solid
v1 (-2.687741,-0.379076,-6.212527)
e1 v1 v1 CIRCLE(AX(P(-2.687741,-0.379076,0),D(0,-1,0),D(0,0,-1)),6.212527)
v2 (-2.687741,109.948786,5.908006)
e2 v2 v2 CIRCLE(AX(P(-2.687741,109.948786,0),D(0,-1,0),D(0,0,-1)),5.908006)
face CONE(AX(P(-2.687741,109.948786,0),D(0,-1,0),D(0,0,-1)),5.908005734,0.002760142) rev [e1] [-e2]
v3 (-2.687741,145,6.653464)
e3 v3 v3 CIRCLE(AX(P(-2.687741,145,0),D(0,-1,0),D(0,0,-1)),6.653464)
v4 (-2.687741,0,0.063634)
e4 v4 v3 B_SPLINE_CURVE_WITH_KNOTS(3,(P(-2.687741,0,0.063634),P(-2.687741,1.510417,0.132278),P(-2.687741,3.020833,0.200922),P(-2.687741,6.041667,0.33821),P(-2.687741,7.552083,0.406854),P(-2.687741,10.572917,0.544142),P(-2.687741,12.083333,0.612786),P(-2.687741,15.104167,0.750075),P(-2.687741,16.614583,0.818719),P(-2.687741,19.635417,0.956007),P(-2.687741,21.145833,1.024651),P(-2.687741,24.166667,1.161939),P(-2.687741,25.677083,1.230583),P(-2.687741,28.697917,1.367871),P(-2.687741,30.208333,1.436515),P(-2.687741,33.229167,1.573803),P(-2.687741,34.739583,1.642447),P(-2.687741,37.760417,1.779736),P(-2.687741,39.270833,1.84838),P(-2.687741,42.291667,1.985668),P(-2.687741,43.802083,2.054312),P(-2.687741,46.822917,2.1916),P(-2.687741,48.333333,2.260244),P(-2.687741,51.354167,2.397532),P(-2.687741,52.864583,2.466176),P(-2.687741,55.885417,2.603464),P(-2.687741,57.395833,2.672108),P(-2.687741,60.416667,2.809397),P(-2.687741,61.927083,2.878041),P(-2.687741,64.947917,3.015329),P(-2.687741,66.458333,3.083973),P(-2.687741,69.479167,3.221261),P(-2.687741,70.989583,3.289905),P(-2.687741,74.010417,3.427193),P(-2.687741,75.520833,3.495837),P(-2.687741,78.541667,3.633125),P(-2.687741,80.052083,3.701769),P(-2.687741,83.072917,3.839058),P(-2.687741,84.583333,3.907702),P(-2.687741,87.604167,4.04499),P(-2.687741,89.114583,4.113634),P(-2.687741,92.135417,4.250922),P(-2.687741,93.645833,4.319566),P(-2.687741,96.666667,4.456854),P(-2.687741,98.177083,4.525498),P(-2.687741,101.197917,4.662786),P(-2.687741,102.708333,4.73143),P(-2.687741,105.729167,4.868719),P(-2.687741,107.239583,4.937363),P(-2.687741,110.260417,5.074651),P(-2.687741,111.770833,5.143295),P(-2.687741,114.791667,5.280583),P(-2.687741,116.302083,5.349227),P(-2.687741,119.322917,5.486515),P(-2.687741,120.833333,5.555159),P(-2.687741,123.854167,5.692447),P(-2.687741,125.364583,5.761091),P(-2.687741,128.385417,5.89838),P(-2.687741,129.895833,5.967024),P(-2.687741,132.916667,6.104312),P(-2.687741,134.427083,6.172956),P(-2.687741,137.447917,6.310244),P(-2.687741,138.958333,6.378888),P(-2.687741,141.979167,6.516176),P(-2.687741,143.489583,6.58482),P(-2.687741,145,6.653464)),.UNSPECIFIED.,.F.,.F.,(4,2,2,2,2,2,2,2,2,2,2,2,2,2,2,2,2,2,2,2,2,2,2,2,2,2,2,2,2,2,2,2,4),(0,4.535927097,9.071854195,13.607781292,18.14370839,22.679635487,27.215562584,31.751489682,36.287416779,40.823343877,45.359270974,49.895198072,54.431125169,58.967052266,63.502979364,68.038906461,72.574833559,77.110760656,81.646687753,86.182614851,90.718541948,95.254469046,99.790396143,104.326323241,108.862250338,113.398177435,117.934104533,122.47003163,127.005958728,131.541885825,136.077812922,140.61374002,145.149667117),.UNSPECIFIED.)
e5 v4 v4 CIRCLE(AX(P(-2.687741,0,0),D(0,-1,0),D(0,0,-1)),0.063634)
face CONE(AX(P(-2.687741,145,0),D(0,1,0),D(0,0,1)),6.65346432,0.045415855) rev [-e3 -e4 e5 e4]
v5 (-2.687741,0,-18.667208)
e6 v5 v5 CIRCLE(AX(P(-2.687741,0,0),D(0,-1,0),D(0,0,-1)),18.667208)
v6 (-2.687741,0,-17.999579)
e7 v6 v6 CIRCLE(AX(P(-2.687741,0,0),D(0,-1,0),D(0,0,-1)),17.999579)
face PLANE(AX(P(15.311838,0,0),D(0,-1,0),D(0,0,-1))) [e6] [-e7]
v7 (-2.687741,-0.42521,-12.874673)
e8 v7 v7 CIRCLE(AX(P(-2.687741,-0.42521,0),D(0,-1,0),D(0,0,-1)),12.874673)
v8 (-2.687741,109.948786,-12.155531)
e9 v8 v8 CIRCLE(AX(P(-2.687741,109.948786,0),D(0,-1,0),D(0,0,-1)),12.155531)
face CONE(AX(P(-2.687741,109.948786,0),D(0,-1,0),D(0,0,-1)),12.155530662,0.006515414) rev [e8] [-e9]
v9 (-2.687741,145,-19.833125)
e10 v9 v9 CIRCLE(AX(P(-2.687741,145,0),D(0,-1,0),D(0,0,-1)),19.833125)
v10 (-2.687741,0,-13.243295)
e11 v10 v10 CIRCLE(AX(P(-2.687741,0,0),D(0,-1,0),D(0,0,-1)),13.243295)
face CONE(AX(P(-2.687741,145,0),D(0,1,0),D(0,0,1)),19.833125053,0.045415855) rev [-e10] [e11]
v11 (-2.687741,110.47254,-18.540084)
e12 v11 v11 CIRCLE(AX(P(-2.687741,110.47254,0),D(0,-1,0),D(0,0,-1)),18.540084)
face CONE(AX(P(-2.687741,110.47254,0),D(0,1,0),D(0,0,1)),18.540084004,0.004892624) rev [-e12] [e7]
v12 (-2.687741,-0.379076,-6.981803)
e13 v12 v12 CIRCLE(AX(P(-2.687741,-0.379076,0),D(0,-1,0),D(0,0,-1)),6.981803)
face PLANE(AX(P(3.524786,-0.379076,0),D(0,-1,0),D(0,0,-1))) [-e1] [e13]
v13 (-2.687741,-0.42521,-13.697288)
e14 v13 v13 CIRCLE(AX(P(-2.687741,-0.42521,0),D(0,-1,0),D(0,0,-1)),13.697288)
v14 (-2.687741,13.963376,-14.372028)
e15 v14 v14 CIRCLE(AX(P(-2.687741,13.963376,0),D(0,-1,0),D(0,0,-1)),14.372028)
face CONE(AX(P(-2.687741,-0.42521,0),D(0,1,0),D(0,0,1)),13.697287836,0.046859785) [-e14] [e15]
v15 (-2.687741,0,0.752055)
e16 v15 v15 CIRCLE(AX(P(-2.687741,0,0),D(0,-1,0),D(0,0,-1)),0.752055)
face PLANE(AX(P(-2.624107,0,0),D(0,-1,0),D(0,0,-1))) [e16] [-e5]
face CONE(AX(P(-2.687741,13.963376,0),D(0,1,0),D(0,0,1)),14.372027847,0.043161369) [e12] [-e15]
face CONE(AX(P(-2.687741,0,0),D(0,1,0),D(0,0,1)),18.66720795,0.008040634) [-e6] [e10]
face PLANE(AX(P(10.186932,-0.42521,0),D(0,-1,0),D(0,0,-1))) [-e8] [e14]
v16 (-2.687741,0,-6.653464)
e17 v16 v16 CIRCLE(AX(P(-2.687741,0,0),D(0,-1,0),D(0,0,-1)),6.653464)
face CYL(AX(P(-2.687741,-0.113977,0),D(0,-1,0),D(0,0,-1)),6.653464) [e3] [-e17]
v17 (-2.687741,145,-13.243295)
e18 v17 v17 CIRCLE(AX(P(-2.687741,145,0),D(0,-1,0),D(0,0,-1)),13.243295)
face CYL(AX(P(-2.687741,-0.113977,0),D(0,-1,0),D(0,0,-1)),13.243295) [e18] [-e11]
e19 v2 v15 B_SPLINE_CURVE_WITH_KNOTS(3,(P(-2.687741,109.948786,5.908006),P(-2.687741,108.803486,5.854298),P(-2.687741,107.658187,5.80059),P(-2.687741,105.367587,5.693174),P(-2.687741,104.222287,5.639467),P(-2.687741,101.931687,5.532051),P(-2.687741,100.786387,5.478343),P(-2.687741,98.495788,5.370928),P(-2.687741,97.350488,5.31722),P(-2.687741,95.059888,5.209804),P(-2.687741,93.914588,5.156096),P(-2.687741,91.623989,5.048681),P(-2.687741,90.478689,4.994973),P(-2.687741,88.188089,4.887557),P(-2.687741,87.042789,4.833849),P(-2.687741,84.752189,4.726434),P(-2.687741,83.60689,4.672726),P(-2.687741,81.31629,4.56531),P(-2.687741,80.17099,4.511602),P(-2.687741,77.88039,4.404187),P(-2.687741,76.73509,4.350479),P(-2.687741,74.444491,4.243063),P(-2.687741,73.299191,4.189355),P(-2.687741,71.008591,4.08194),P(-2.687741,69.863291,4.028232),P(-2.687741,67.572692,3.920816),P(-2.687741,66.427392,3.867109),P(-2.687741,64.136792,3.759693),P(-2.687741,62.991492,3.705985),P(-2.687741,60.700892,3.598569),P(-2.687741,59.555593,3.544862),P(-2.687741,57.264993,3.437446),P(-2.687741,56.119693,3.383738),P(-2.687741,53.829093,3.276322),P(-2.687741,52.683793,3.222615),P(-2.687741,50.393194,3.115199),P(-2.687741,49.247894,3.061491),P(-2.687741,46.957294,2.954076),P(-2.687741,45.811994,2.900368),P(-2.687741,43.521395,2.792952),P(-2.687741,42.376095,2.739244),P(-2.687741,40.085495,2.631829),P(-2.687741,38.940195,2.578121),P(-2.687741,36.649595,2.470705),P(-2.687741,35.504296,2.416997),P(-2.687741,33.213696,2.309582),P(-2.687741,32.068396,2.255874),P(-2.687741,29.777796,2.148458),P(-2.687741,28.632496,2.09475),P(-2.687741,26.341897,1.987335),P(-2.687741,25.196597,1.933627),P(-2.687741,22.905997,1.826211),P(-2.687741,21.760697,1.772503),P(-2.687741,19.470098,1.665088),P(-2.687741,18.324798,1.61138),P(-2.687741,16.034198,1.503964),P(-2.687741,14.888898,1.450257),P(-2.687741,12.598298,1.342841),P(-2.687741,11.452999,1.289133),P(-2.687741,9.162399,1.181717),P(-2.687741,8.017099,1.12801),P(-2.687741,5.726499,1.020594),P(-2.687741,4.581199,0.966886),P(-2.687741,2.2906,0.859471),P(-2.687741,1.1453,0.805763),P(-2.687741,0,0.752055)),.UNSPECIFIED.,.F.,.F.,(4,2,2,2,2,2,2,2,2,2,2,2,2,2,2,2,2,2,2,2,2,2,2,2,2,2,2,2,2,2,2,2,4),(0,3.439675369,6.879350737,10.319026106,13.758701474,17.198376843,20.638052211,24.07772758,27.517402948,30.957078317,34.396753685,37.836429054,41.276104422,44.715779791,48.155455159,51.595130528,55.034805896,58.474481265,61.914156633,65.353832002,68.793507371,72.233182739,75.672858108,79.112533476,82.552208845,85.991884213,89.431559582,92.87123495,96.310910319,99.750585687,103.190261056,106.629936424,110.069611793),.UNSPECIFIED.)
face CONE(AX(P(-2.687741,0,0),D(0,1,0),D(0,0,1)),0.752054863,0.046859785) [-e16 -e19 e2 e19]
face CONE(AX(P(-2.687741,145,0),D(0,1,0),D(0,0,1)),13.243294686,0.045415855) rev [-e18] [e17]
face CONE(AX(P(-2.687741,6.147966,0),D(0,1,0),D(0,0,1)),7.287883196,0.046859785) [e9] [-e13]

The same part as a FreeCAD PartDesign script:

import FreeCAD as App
import Part
import Sketcher
from FreeCAD import Vector
Q = App.Units.Quantity

doc = App.newDocument("Part")
params = doc.addObject("Spreadsheet::Sheet", "Params")
for row, (alias, value) in enumerate([
    ("sketch1_height", "145 mm"),
    ("revolution_angle", "360 deg"),
], start=1):
    params.set(f"A{row}", alias)
    params.set(f"B{row}", "=" + value)
    params.setAlias(f"B{row}", alias)

body = doc.addObject("PartDesign::Body", "Body")

# Sketch on XY plane
sketch1 = body.newObject("Sketcher::SketchObject", "Sketch")
sketch1.AttachmentSupport = (doc.getObject("XY_Plane"), [""])
sketch1.MapMode = "FlatFace"
sketch1.addGeometry(Part.LineSegment(Vector(4, 145, 0), Vector(-2.6, 0, 0)), False)
sketch1.addGeometry(Part.LineSegment(Vector(-2.6, 0, 0), Vector(-1.9, 0, 0)), False)
sketch1.addGeometry(Part.LineSegment(Vector(-1.9, 0, 0), Vector(3.2, 109.9, 0)), False)
sketch1.addGeometry(Part.LineSegment(Vector(3.2, 109.9, 0), Vector(3.5, -0.4, 0)), False)
sketch1.addGeometry(Part.LineSegment(Vector(3.5, -0.4, 0), Vector(4.3, -0.4, 0)), False)
sketch1.addGeometry(Part.LineSegment(Vector(4.3, -0.4, 0), Vector(4.6, 6.1, 0)), False)
sketch1.addGeometry(Part.LineSegment(Vector(4.6, 6.1, 0), Vector(9.5, 109.9, 0)), False)
sketch1.addGeometry(Part.LineSegment(Vector(9.5, 109.9, 0), Vector(10.2, -0.4, 0)), False)
sketch1.addGeometry(Part.LineSegment(Vector(10.2, -0.4, 0), Vector(11, -0.4, 0)), False)
sketch1.addGeometry(Part.LineSegment(Vector(11, -0.4, 0), Vector(11.7, 14, 0)), False)
sketch1.addGeometry(Part.LineSegment(Vector(11.7, 14, 0), Vector(15.9, 110.5, 0)), False)
sketch1.addGeometry(Part.LineSegment(Vector(15.9, 110.5, 0), Vector(15.3, 0, 0)), False)
sketch1.addGeometry(Part.LineSegment(Vector(15.3, 0, 0), Vector(16, 0, 0)), False)
sketch1.addGeometry(Part.LineSegment(Vector(16, 0, 0), Vector(17.1, 145, 0)), False)
sketch1.addGeometry(Part.LineSegment(Vector(17.1, 145, 0), Vector(10.6, 0, 0)), False)
sketch1.addGeometry(Part.LineSegment(Vector(10.6, 0, 0), Vector(10.6, 145, 0)), False)
sketch1.addGeometry(Part.LineSegment(Vector(10.6, 145, 0), Vector(4, 0, 0)), False)
sketch1.addGeometry(Part.LineSegment(Vector(4, 0, 0), Vector(4, 145, 0)), False)
sketch1.addGeometry(Part.LineSegment(Vector(-2.7, -0.4, 0), Vector(-2.7, 145, 0)), True)  # axis
sketch1.addConstraint(Sketcher.Constraint("Coincident", 0, 2, 1, 1))
sketch1.addConstraint(Sketcher.Constraint("Coincident", 1, 2, 2, 1))
sketch1.addConstraint(Sketcher.Constraint("Coincident", 2, 2, 3, 1))
sketch1.addConstraint(Sketcher.Constraint("Coincident", 3, 2, 4, 1))
sketch1.addConstraint(Sketcher.Constraint("Coincident", 4, 2, 5, 1))
sketch1.addConstraint(Sketcher.Constraint("Coincident", 5, 2, 6, 1))
sketch1.addConstraint(Sketcher.Constraint("Coincident", 6, 2, 7, 1))
sketch1.addConstraint(Sketcher.Constraint("Coincident", 7, 2, 8, 1))
sketch1.addConstraint(Sketcher.Constraint("Coincident", 8, 2, 9, 1))
sketch1.addConstraint(Sketcher.Constraint("Coincident", 9, 2, 10, 1))
sketch1.addConstraint(Sketcher.Constraint("Coincident", 10, 2, 11, 1))
sketch1.addConstraint(Sketcher.Constraint("Coincident", 11, 2, 12, 1))
sketch1.addConstraint(Sketcher.Constraint("Coincident", 12, 2, 13, 1))
sketch1.addConstraint(Sketcher.Constraint("Coincident", 13, 2, 14, 1))
sketch1.addConstraint(Sketcher.Constraint("Coincident", 14, 2, 15, 1))
sketch1.addConstraint(Sketcher.Constraint("Coincident", 15, 2, 16, 1))
sketch1.addConstraint(Sketcher.Constraint("Coincident", 16, 2, 17, 1))
sketch1.addConstraint(Sketcher.Constraint("Coincident", 17, 2, 0, 1))
sketch1.addConstraint(Sketcher.Constraint("Horizontal", 1))
sketch1.addConstraint(Sketcher.Constraint("Horizontal", 4))
sketch1.addConstraint(Sketcher.Constraint("Horizontal", 8))
sketch1.addConstraint(Sketcher.Constraint("Horizontal", 12))
sketch1.addConstraint(Sketcher.Constraint("Vertical", 15))
sketch1.addConstraint(Sketcher.Constraint("Vertical", 17))
sketch1.addConstraint(Sketcher.Constraint("Vertical", 18))
sketch1.addConstraint(Sketcher.Constraint("PointOnObject", 0, 2, -1))
sketch1.addConstraint(Sketcher.Constraint("PointOnObject", 11, 2, -1))
sketch1.addConstraint(Sketcher.Constraint("PointOnObject", 14, 2, -1))
sketch1.addConstraint(Sketcher.Constraint("PointOnObject", 16, 2, -1))
sketch1.addConstraint(Sketcher.Constraint("Parallel", 2, 5))
sketch1.addConstraint(Sketcher.Constraint("Parallel", 5, 6))
sketch1.addConstraint(Sketcher.Constraint("Parallel", 6, 9))
sketch1.addConstraint(Sketcher.Constraint("Parallel", 0, 14))
sketch1.addConstraint(Sketcher.Constraint("Parallel", 14, 16))
sketch1.addConstraint(Sketcher.Constraint("Horizontal", 2, 2, 6, 2))
sketch1.addConstraint(Sketcher.Constraint("Horizontal", 13, 2, 15, 2))
sketch1.addConstraint(Sketcher.Constraint("Horizontal", 15, 2, 17, 2))
sketch1.addConstraint(Sketcher.Constraint("Horizontal", 8, 2, 18, 1))
sketch1.addConstraint(Sketcher.Constraint("Horizontal", 17, 2, 18, 2))
sketch1.addConstraint(Sketcher.Constraint("DistanceY", 15, 1, 15, 2, Q("145 mm")))
sketch1.addConstraint(Sketcher.Constraint("Distance", 9, Q("14.404399 mm")))
sketch1.addConstraint(Sketcher.Constraint("DistanceX", 1, 1, 1, 2, Q("0.688421 mm")))
sketch1.addConstraint(Sketcher.Constraint("DistanceX", 12, 1, 12, 2, Q("0.667629 mm")))
sketch1.addConstraint(Sketcher.Constraint("DistanceY", 18, 1, 18, 2, Q("145.42521 mm")))
sketch1.addConstraint(Sketcher.Constraint("DistanceX", 3, 2, 9, 2, Q("8.159501 mm")))
sketch1.addConstraint(Sketcher.Constraint("DistanceX", 5, 2, 10, 2, Q("11.252201 mm")))
sketch1.addConstraint(Sketcher.Constraint("Distance", 2, Q("110.069612 mm")))
sketch1.addConstraint(Sketcher.Constraint("Distance", 6, Q("103.91489 mm")))
sketch1.addConstraint(Sketcher.Constraint("Distance", 7, Q("110.376339 mm")))
sketch1.addConstraint(Sketcher.Constraint("DistanceX", 4, 1, 4, 2, Q("0.769276 mm")))
sketch1.addConstraint(Sketcher.Constraint("DistanceX", 8, 1, 8, 2, Q("0.822615 mm")))
sketch1.addConstraint(Sketcher.Constraint("DistanceX", -1, 1, 6, 2, Q("9.46779 mm")))
sketch1.addConstraint(Sketcher.Constraint("DistanceY", -1, 1, 10, 2, Q("110.47254 mm")))
sketch1.addConstraint(Sketcher.Constraint("DistanceX", -1, 1, 11, 2, Q("15.311838 mm")))
sketch1.addConstraint(Sketcher.Constraint("DistanceX", 18, 1, -1, 1, Q("2.687741 mm")))
sketch1.addConstraint(Sketcher.Constraint("DistanceX", 2, 2, 3, 2, Q("0.304521 mm")))
sketch1.addConstraint(Sketcher.Constraint("DistanceX", 4, 2, 5, 2, Q("0.30608 mm")))
sketch1.addConstraint(Sketcher.Constraint("DistanceX", 10, 2, 13, 2, Q("1.293041 mm")))
sketch1.setExpression("Constraints[39]", "Params.sketch1_height")
revolution = body.newObject("PartDesign::Revolution", "Revolution")
revolution.Profile = sketch1
revolution.ReferenceAxis = (sketch1, ["Axis0"])
revolution.setExpression("Angle", "Params.revolution_angle")

doc.recompute()
